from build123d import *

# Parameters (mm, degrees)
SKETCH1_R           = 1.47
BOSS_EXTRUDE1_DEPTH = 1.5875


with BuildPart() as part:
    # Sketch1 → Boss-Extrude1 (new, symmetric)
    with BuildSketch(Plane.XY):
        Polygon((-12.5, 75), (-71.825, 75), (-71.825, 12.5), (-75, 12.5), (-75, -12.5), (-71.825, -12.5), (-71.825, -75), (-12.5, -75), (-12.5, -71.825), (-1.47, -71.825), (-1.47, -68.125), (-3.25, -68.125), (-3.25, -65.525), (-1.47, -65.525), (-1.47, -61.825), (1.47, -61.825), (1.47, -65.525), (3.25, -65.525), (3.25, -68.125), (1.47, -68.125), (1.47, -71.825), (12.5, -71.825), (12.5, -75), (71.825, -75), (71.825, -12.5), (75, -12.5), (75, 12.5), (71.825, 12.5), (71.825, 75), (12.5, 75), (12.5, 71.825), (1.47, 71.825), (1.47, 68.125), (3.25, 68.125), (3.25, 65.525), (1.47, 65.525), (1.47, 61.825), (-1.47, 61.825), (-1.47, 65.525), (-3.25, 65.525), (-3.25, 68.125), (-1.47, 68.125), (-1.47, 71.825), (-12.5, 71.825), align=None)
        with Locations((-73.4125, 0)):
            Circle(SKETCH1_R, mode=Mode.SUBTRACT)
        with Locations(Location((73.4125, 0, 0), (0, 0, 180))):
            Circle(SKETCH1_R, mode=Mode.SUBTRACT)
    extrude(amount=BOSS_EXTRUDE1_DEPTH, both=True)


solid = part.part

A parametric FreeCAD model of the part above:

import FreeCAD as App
import Part
import Sketcher
from FreeCAD import Vector


def add_polygon(sketch, points):
    """Adds a closed chain of lines whose ends are joined by coincident constraints."""
    first, n = sketch.GeometryCount, len(points)
    for a, b in zip(points, points[1:] + points[:1]):
        sketch.addGeometry(Part.LineSegment(App.Vector(*a, 0), App.Vector(*b, 0)), False)
    for i in range(n):
        sketch.addConstraint(Sketcher.Constraint("Coincident", first + i, 2, first + (i + 1) % n, 1))

doc = App.newDocument("Part")
body = doc.addObject("PartDesign::Body", "Body")

sketch1 = body.newObject("Sketcher::SketchObject", "Sketch")
sketch1.AttachmentSupport = (doc.getObject("XY_Plane"), [""])
sketch1.MapMode = "FlatFace"
add_polygon(sketch1, [(-12.5, 75), (-71.8, 75), (-71.8, 12.5), (-75, 12.5), (-75, -12.5), (-71.8, -12.5), (-71.8, -75), (-12.5, -75), (-12.5, -71.8), (-1.5, -71.8), (-1.5, -68.1), (-3.2, -68.1), (-3.2, -65.5), (-1.5, -65.5), (-1.5, -61.8), (1.5, -61.8), (1.5, -65.5), (3.2, -65.5), (3.2, -68.1), (1.5, -68.1), (1.5, -71.8), (12.5, -71.8), (12.5, -75), (71.8, -75), (71.8, -12.5), (75, -12.5), (75, 12.5), (71.8, 12.5), (71.8, 75), (12.5, 75), (12.5, 71.8), (1.5, 71.8), (1.5, 68.1), (3.2, 68.1), (3.2, 65.5), (1.5, 65.5), (1.5, 61.8), (-1.5, 61.8), (-1.5, 65.5), (-3.2, 65.5), (-3.2, 68.1), (-1.5, 68.1), (-1.5, 71.8), (-12.5, 71.8)])
sketch1.addGeometry(Part.Circle(Vector(-73.4, 0, 0), Vector(0, 0, 1), 1.5), False)
sketch1.addGeometry(Part.Circle(Vector(73.4, 0, 0), Vector(0, 0, 1), 1.5), False)
sketch1.addConstraint([
    Sketcher.Constraint("Horizontal", 0),
    Sketcher.Constraint("Vertical", 1),
    Sketcher.Constraint("Horizontal", 2),
    Sketcher.Constraint("Vertical", 3),
    Sketcher.Constraint("Horizontal", 4),
    Sketcher.Constraint("Vertical", 5),
    Sketcher.Constraint("Horizontal", 6),
    Sketcher.Constraint("Vertical", 7),
    Sketcher.Constraint("Horizontal", 8),
    Sketcher.Constraint("Vertical", 9),
    Sketcher.Constraint("Horizontal", 10),
    Sketcher.Constraint("Vertical", 11),
    Sketcher.Constraint("Horizontal", 12),
    Sketcher.Constraint("Vertical", 13),
    Sketcher.Constraint("Horizontal", 14),
    Sketcher.Constraint("Vertical", 15),
    Sketcher.Constraint("Horizontal", 16),
    Sketcher.Constraint("Vertical", 17),
    Sketcher.Constraint("Horizontal", 18),
    Sketcher.Constraint("Vertical", 19),
    Sketcher.Constraint("Horizontal", 20),
    Sketcher.Constraint("Vertical", 21),
    Sketcher.Constraint("Horizontal", 22),
    Sketcher.Constraint("Vertical", 23),
    Sketcher.Constraint("Horizontal", 24),
    Sketcher.Constraint("Vertical", 25),
    Sketcher.Constraint("Horizontal", 26),
    Sketcher.Constraint("Vertical", 27),
    Sketcher.Constraint("Horizontal", 28),
    Sketcher.Constraint("Vertical", 29),
    Sketcher.Constraint("Horizontal", 30),
    Sketcher.Constraint("Vertical", 31),
    Sketcher.Constraint("Horizontal", 32),
    Sketcher.Constraint("Vertical", 33),
    Sketcher.Constraint("Horizontal", 34),
    Sketcher.Constraint("Vertical", 35),
    Sketcher.Constraint("Horizontal", 36),
    Sketcher.Constraint("Vertical", 37),
    Sketcher.Constraint("Horizontal", 38),
    Sketcher.Constraint("Vertical", 39),
    Sketcher.Constraint("Horizontal", 40),
    Sketcher.Constraint("Vertical", 41),
    Sketcher.Constraint("Horizontal", 42),
    Sketcher.Constraint("Vertical", 43),
    Sketcher.Constraint("Equal", 44, 45),
    Sketcher.Constraint("Symmetric", 44, 3, 45, 3, -1, 1),
    Sketcher.Constraint("Symmetric", 0, 2, 22, 2, -1, 1),
    Sketcher.Constraint("Symmetric", 2, 2, 24, 2, -1, 1),
    Sketcher.Constraint("Symmetric", 4, 2, 26, 2, -1, 1),
    Sketcher.Constraint("Symmetric", 6, 2, 28, 2, -1, 1),
    Sketcher.Constraint("Symmetric", 8, 2, 30, 2, -1, 1),
    Sketcher.Constraint("Symmetric", 10, 2, 32, 2, -1, 1),
    Sketcher.Constraint("Symmetric", 12, 2, 34, 2, -1, 1),
    Sketcher.Constraint("Symmetric", 14, 2, 36, 2, -1, 1),
    Sketcher.Constraint("Symmetric", 16, 2, 38, 2, -1, 1),
    Sketcher.Constraint("Symmetric", 18, 2, 40, 2, -1, 1),
    Sketcher.Constraint("Symmetric", 20, 2, 42, 2, -1, 1),
    Sketcher.Constraint("Symmetric", 12, 2, 15, 2, -2),
    Sketcher.Constraint("Symmetric", 10, 2, 17, 2, -2),
    Sketcher.Constraint("Symmetric", 8, 2, 19, 2, -2),
    Sketcher.Constraint("Symmetric", 6, 2, 21, 2, -2),
    Sketcher.Constraint("Symmetric", 4, 2, 23, 2, -2),
    Sketcher.Constraint("PointOnObject", 44, 3, -1),
    Sketcher.Constraint("Vertical", 9, 2, 12, 2),
    Sketcher.Constraint("Equal", 26, 7),
    Sketcher.Constraint("Equal", 9, 13),
    Sketcher.Constraint("Diameter", 44, 2.94),
    Sketcher.Constraint("DistanceY", 3, 2, 3, 1, 25.0),
    Sketcher.Constraint("DistanceY", 1, 2, 1, 1, 62.5),
    Sketcher.Constraint("DistanceY", 9, 1, 9, 2, 3.7),
    Sketcher.Constraint("DistanceY", 11, 1, 11, 2, 2.6),
    Sketcher.Constraint("DistanceX", 2, 2, -1, 1, 75.0),
    Sketcher.Constraint("DistanceX", 8, 1, 8, 2, 11.03),
    Sketcher.Constraint("DistanceX", 10, 2, 10, 1, 1.78),
    Sketcher.Constraint("DistanceX", 14, 1, 14, 2, 2.94),
    Sketcher.Constraint("DistanceX", 0, 2, 0, 1, 59.325),
    Sketcher.Constraint("DistanceX", 44, 3, 45, 3, 146.825),
])
pad1 = body.newObject("PartDesign::Pad", "Pad")
pad1.Profile = sketch1
pad1.Length = 3.175
pad1.Midplane = True

doc.recompute()
